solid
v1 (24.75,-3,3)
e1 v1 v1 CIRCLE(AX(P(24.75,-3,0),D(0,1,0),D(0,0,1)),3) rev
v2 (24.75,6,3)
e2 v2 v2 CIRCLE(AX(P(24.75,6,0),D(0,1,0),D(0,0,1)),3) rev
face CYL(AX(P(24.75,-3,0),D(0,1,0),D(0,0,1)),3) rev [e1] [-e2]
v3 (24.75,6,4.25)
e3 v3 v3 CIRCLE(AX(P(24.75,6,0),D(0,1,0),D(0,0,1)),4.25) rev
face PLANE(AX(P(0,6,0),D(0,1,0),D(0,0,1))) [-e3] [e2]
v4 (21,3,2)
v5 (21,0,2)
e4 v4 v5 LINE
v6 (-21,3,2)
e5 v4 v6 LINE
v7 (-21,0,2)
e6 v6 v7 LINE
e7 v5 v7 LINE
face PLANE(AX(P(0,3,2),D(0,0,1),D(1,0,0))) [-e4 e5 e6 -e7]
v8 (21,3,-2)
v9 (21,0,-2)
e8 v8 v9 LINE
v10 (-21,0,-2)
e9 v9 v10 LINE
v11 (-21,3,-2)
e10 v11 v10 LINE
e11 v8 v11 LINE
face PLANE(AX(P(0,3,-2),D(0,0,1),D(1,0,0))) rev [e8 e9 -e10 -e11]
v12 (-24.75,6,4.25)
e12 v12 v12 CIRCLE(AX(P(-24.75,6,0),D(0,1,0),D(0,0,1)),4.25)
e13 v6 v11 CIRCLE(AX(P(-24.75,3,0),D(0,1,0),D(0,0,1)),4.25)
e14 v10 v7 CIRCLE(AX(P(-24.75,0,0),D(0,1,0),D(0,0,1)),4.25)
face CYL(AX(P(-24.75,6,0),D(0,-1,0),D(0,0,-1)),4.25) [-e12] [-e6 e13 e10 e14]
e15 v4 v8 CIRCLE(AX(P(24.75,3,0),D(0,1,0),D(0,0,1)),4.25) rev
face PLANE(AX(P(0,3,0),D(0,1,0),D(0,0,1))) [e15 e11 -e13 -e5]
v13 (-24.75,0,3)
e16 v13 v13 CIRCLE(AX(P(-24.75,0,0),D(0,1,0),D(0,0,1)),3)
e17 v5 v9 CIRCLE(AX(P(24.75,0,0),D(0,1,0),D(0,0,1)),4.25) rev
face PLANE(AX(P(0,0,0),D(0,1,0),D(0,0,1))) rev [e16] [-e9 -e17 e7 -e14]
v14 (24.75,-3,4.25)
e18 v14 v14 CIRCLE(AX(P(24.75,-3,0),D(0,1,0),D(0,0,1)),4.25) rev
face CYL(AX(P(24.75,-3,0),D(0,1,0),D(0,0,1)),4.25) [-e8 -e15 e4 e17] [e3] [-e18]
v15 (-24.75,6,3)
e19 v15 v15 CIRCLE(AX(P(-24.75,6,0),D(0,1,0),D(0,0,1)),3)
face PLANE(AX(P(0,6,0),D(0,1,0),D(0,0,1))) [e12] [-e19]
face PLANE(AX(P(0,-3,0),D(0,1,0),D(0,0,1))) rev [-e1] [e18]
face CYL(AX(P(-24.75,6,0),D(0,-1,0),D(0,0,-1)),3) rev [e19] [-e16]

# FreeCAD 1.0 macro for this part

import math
import FreeCAD as App
import Part
import Sketcher

V = App.Vector

doc = App.newDocument("Part")
body = doc.addObject("PartDesign::Body", "Body")

# Sketch on XZ plane
sketch1 = doc.addObject("Sketcher::SketchObject", "Sketch")
body.addObject(sketch1)
sketch1.AttachmentSupport = (doc.XZ_Plane, [""])
sketch1.MapMode = "FlatFace"
sketch1.addGeometry(Part.ArcOfCircle(Part.Circle(V(24.8, 0, 0), V(0, 0, 1), 4.2), math.radians(152), math.radians(208)), False)
sketch1.addGeometry(Part.LineSegment(V(21, -2, 0), V(-21, -2, 0)), False)
sketch1.addGeometry(Part.ArcOfCircle(Part.Circle(V(-24.7, 0, 0), V(0, 0, 1), 4.2), math.radians(-28), math.radians(0)), False)
sketch1.addGeometry(Part.ArcOfCircle(Part.Circle(V(-24.7, 0, 0), V(0, 0, 1), 4.2), math.radians(0), math.radians(28)), False)
sketch1.addGeometry(Part.LineSegment(V(-21, 2, 0), V(21, 2, 0)), False)
sketch1.addConstraint(Sketcher.Constraint("Coincident", 0, 2, 1, 1))
sketch1.addConstraint(Sketcher.Constraint("Coincident", 1, 2, 2, 1))
sketch1.addConstraint(Sketcher.Constraint("Tangent", 2, 2, 3, 1))
sketch1.addConstraint(Sketcher.Constraint("Coincident", 3, 2, 4, 1))
sketch1.addConstraint(Sketcher.Constraint("Coincident", 4, 2, 0, 1))
sketch1.addConstraint(Sketcher.Constraint("Horizontal", 1))
sketch1.addConstraint(Sketcher.Constraint("Horizontal", 4))
sketch1.addConstraint(Sketcher.Constraint("Equal", 0, 2))
sketch1.addConstraint(Sketcher.Constraint("Equal", 2, 3))
sketch1.addConstraint(Sketcher.Constraint("Symmetric", 0, 3, 2, 3, -1, 1))
sketch1.addConstraint(Sketcher.Constraint("Symmetric", 1, 2, 3, 2, -1))
sketch1.addConstraint(Sketcher.Constraint("PointOnObject", 2, 2, -1))
sketch1.addConstraint(Sketcher.Constraint("DistanceX", 1, 2, 1, 1, 42.0))
sketch1.addConstraint(Sketcher.Constraint("Radius", 0, 4.25))
sketch1.addConstraint(Sketcher.Constraint("DistanceY", 0, 2, -1, 1, 2.0))
pad1 = doc.addObject("PartDesign::Pad", "Pad")
body.addObject(pad1)
pad1.Profile = sketch1
pad1.Length = 3
pad1.Reversed = True

# Sketch on XZ plane
sketch2 = doc.addObject("Sketcher::SketchObject", "Sketch001")
body.addObject(sketch2)
sketch2.AttachmentSupport = (doc.XZ_Plane, [""])
sketch2.MapMode = "FlatFace"
sketch2.addGeometry(Part.Circle(V(-24.8, 0, 0), V(0, 0, 1), 4.2), False)
sketch2.addGeometry(Part.Circle(V(-24.8, 0, 0), V(0, 0, 1), 3), False)
sketch2.addConstraint(Sketcher.Constraint("Coincident", 1, 3, 0, 3))
sketch2.addConstraint(Sketcher.Constraint("PointOnObject", 0, 3, -1))
sketch2.addConstraint(Sketcher.Constraint("Diameter", 1, 6.0))
sketch2.addConstraint(Sketcher.Constraint("Diameter", 0, 8.5))
sketch2.addConstraint(Sketcher.Constraint("DistanceX", 0, 3, -1, 1, 24.75))
pad2 = doc.addObject("PartDesign::Pad", "Pad001")
body.addObject(pad2)
pad2.Profile = sketch2
pad2.Length = 6
pad2.Reversed = True

# Sketch on XZ plane
sketch3 = doc.addObject("Sketcher::SketchObject", "Sketch002")
body.addObject(sketch3)
sketch3.AttachmentSupport = (doc.XZ_Plane, [""])
sketch3.MapMode = "FlatFace"
sketch3.addGeometry(Part.Circle(V(24.8, 0, 0), V(0, 0, 1), 4.2), False)
sketch3.addGeometry(Part.Circle(V(24.8, 0, 0), V(0, 0, 1), 3), False)
sketch3.addConstraint(Sketcher.Constraint("Coincident", 1, 3, 0, 3))
sketch3.addConstraint(Sketcher.Constraint("PointOnObject", 0, 3, -1))
sketch3.addConstraint(Sketcher.Constraint("Diameter", 1, 6.0))
sketch3.addConstraint(Sketcher.Constraint("Diameter", 0, 8.5))
sketch3.addConstraint(Sketcher.Constraint("DistanceX", -1, 1, 0, 3, 24.75))
pad3 = doc.addObject("PartDesign::Pad", "Pad002")
body.addObject(pad3)
pad3.Profile = sketch3
pad3.Type = "TwoLengths"
pad3.Length = 6
pad3.Length2 = 3
pad3.Reversed = True

doc.recompute()
